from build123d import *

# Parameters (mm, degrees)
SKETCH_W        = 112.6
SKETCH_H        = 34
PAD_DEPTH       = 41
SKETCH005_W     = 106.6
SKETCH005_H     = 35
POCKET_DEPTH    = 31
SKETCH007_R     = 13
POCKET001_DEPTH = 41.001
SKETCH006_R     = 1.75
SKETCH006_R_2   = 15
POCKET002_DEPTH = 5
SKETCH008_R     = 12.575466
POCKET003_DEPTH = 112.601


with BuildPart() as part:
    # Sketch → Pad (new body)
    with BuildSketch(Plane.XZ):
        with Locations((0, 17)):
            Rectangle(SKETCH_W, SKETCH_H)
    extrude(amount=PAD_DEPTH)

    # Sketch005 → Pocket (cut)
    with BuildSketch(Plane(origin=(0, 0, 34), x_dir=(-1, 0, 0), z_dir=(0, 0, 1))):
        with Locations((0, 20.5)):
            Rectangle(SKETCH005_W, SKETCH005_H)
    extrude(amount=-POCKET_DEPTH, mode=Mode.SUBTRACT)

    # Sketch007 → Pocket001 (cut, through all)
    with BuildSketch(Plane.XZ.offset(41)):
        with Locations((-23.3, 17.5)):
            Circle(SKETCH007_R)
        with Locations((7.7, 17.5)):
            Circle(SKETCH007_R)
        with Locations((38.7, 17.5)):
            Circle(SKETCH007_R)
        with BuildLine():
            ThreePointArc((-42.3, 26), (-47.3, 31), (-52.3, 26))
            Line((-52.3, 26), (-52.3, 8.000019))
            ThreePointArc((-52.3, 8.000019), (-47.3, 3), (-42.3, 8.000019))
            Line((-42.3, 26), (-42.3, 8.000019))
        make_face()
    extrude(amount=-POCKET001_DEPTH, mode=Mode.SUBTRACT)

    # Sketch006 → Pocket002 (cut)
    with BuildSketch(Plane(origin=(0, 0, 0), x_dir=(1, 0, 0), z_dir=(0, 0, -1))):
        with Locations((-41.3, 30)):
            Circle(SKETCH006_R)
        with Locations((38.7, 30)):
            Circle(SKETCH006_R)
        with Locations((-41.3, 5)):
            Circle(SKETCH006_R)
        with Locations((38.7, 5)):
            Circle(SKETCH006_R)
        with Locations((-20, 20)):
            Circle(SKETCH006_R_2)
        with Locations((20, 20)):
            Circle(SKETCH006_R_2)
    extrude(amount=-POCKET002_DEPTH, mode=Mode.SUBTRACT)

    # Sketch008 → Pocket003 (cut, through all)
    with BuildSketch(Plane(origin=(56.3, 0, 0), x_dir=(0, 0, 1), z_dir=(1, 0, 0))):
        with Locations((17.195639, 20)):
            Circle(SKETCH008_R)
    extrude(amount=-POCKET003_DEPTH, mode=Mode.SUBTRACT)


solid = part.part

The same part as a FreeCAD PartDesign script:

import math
import FreeCAD as App
import Part
import Sketcher
Q = App.Units.Quantity

doc = App.newDocument("Part")
params = doc.addObject("Spreadsheet::Sheet", "Params")
for row, (alias, value) in enumerate([
    ("sketch1_height", "34 mm"),
    ("sketch1_width", "112.6 mm"),
    ("pad1_length", "41 mm"),
    ("sketch2_height", "35 mm"),
    ("sketch2_width", "106.6 mm"),
    ("pocket1_length", "31 mm"),
    ("sketch3_diameter", "26 mm"),
    ("sketch3_radius", "5 mm"),
    ("sketch4_diameter", "30 mm"),
    ("sketch4_diameter2", "3.5 mm"),
    ("pocket3_length", "5 mm"),
], start=1):
    params.set(f"A{row}", alias)
    params.set(f"B{row}", "=" + value)
    params.setAlias(f"B{row}", alias)

body = doc.addObject("PartDesign::Body", "Body")

sketch1 = body.newObject("Sketcher::SketchObject", "Sketch")
sketch1.AttachmentSupport = (doc.getObject("XZ_Plane"), [""])
sketch1.MapMode = "FlatFace"
sketch1.addGeometry([
    Part.LineSegment(App.Vector(-56, 34, 0), App.Vector(-56, 0, 0)),
    Part.LineSegment(App.Vector(-56, 0, 0), App.Vector(56, 0, 0)),
    Part.LineSegment(App.Vector(56, 0, 0), App.Vector(56, 34, 0)),
    Part.LineSegment(App.Vector(56, 34, 0), App.Vector(-56, 34, 0)),
], False)
sketch1.addConstraint([
    Sketcher.Constraint("Coincident", 0, 2, 1, 1),
    Sketcher.Constraint("Coincident", 1, 2, 2, 1),
    Sketcher.Constraint("Coincident", 2, 2, 3, 1),
    Sketcher.Constraint("Coincident", 3, 2, 0, 1),
    Sketcher.Constraint("Vertical", 0),
    Sketcher.Constraint("Horizontal", 1),
    Sketcher.Constraint("Vertical", 2),
    Sketcher.Constraint("Horizontal", 3),
    Sketcher.Constraint("Symmetric", 0, 2, 1, 2, -1, 1),
    Sketcher.Constraint("DistanceY", 0, 2, 0, 1, Q("34 mm")),
    Sketcher.Constraint("DistanceX", 1, 1, 1, 2, Q("112.6 mm")),
])
sketch1.setExpression("Constraints[9]", "Params.sketch1_height")
sketch1.setExpression("Constraints[10]", "Params.sketch1_width")
pad1 = body.newObject("PartDesign::Pad", "Pad")
pad1.Profile = sketch1
pad1.setExpression("Length", "Params.pad1_length")

sketch2 = body.newObject("Sketcher::SketchObject", "Sketch001")
sketch2.AttachmentSupport = (doc.getObject("XY_Plane"), [""])
sketch2.MapMode = "FlatFace"
sketch2.AttachmentOffset = App.Placement(App.Vector(0, 0, 34), App.Rotation())
sketch2.addGeometry([
    Part.LineSegment(App.Vector(53, -38, 0), App.Vector(53, -3, 0)),
    Part.LineSegment(App.Vector(53, -3, 0), App.Vector(-53, -3, 0)),
    Part.LineSegment(App.Vector(-53, -3, 0), App.Vector(-53, -38, 0)),
    Part.LineSegment(App.Vector(-53, -38, 0), App.Vector(53, -38, 0)),
], False)
sketch2.addConstraint([
    Sketcher.Constraint("Coincident", 0, 2, 1, 1),
    Sketcher.Constraint("Coincident", 1, 2, 2, 1),
    Sketcher.Constraint("Coincident", 2, 2, 3, 1),
    Sketcher.Constraint("Coincident", 3, 2, 0, 1),
    Sketcher.Constraint("Vertical", 0),
    Sketcher.Constraint("Horizontal", 1),
    Sketcher.Constraint("Vertical", 2),
    Sketcher.Constraint("Horizontal", 3),
    Sketcher.Constraint("DistanceY", 0, 1, 0, 2, Q("35 mm")),
    Sketcher.Constraint("DistanceX", 1, 2, 1, 1, Q("106.6 mm")),
    Sketcher.Constraint("DistanceY", 0, 2, -1, 1, Q("3 mm")),
    Sketcher.Constraint("DistanceX", -1, 1, 0, 2, Q("53.3 mm")),
])
sketch2.setExpression("Constraints[8]", "Params.sketch2_height")
sketch2.setExpression("Constraints[9]", "Params.sketch2_width")
pocket1 = body.newObject("PartDesign::Pocket", "Pocket")
pocket1.Profile = sketch2
pocket1.setExpression("Length", "Params.pocket1_length")

sketch3 = body.newObject("Sketcher::SketchObject", "Sketch002")
sketch3.AttachmentSupport = (doc.getObject("XZ_Plane"), [""])
sketch3.MapMode = "FlatFace"
sketch3.AttachmentOffset = App.Placement(App.Vector(0, 0, 41), App.Rotation())
sketch3.addGeometry([
    Part.Circle(App.Vector(-23, 18, 0), App.Vector(0, 0, 1), 13),
    Part.Circle(App.Vector(8, 18, 0), App.Vector(0, 0, 1), 13),
    Part.Circle(App.Vector(39, 18, 0), App.Vector(0, 0, 1), 13),
    Part.ArcOfCircle(Part.Circle(App.Vector(-47, 26, 0), App.Vector(0, 0, 1), 5), math.radians(0), math.radians(180)),
    Part.LineSegment(App.Vector(-52, 26, 0), App.Vector(-52, 8, 0)),
    Part.ArcOfCircle(Part.Circle(App.Vector(-47, 8, 0), App.Vector(0, 0, 1), 5), math.radians(180), math.radians(360)),
    Part.LineSegment(App.Vector(-42, 8, 0), App.Vector(-42, 26, 0)),
], False)
sketch3.addConstraint([
    Sketcher.Constraint("Tangent", 3, 2, 4, 1),
    Sketcher.Constraint("Coincident", 4, 2, 5, 1),
    Sketcher.Constraint("Coincident", 5, 2, 6, 1),
    Sketcher.Constraint("Tangent", 6, 2, 3, 1),
    Sketcher.Constraint("Vertical", 4),
    Sketcher.Constraint("Vertical", 6),
    Sketcher.Constraint("Equal", 0, 1),
    Sketcher.Constraint("Equal", 1, 2),
    Sketcher.Constraint("Horizontal", 0, 3, 1, 3),
    Sketcher.Constraint("Horizontal", 1, 3, 2, 3),
    Sketcher.Constraint("Horizontal", 4, 2, 5, 2),
    Sketcher.Constraint("Diameter", 0, Q("26 mm")),
    Sketcher.Constraint("Radius", 3, Q("5 mm")),
    Sketcher.Constraint("DistanceY", -1, 1, 3, 3, Q("26 mm")),
    Sketcher.Constraint("DistanceY", -1, 1, 5, 3, Q("8 mm")),
    Sketcher.Constraint("DistanceX", 0, 3, 1, 3, Q("31 mm")),
    Sketcher.Constraint("DistanceX", 1, 3, 2, 3, Q("31 mm")),
    Sketcher.Constraint("DistanceX", 3, 3, 0, 3, Q("24 mm")),
    Sketcher.Constraint("DistanceX", 0, 3, -1, 1, Q("23.3 mm")),
    Sketcher.Constraint("DistanceY", -1, 1, 0, 3, Q("17.5 mm")),
    Sketcher.Constraint("DistanceY", 4, 2, 4, 1, Q("17.999981 mm")),
])
sketch3.setExpression("Constraints[11]", "Params.sketch3_diameter")
sketch3.setExpression("Constraints[12]", "Params.sketch3_radius")
pocket2 = body.newObject("PartDesign::Pocket", "Pocket001")
pocket2.Profile = sketch3
pocket2.Type = "ThroughAll"

sketch4 = body.newObject("Sketcher::SketchObject", "Sketch003")
sketch4.AttachmentSupport = (doc.getObject("XY_Plane"), [""])
sketch4.MapMode = "FlatFace"
sketch4.addGeometry([
    Part.Circle(App.Vector(-41.3, -30, 0), App.Vector(0, 0, 1), 1.8),
    Part.Circle(App.Vector(38.7, -30, 0), App.Vector(0, 0, 1), 1.8),
    Part.Circle(App.Vector(-41.3, -5, 0), App.Vector(0, 0, 1), 1.8),
    Part.Circle(App.Vector(38.7, -5, 0), App.Vector(0, 0, 1), 1.8),
    Part.Circle(App.Vector(-20, -20, 0), App.Vector(0, 0, 1), 15),
    Part.Circle(App.Vector(20, -20, 0), App.Vector(0, 0, 1), 15),
], False)
sketch4.addConstraint([
    Sketcher.Constraint("Equal", 0, 1),
    Sketcher.Constraint("Equal", 1, 2),
    Sketcher.Constraint("Equal", 2, 3),
    Sketcher.Constraint("Equal", 4, 5),
    Sketcher.Constraint("Symmetric", 4, 3, 5, 3, -2),
    Sketcher.Constraint("Horizontal", 0, 3, 1, 3),
    Sketcher.Constraint("Horizontal", 2, 3, 3, 3),
    Sketcher.Constraint("Vertical", 0, 3, 2, 3),
    Sketcher.Constraint("Vertical", 1, 3, 3, 3),
    Sketcher.Constraint("Diameter", 4, Q("30 mm")),
    Sketcher.Constraint("Diameter", 0, Q("3.5 mm")),
    Sketcher.Constraint("DistanceY", 0, 3, -1, 1, Q("30 mm")),
    Sketcher.Constraint("DistanceY", 2, 3, -1, 1, Q("5 mm")),
    Sketcher.Constraint("DistanceX", 4, 3, -1, 1, Q("20 mm")),
    Sketcher.Constraint("DistanceY", 4, 3, -1, 1, Q("20 mm")),
    Sketcher.Constraint("DistanceX", 0, 3, 1, 3, Q("80 mm")),
    Sketcher.Constraint("DistanceX", 0, 3, -1, 1, Q("41.3 mm")),
])
sketch4.setExpression("Constraints[9]", "Params.sketch4_diameter")
sketch4.setExpression("Constraints[10]", "Params.sketch4_diameter2")
pocket3 = body.newObject("PartDesign::Pocket", "Pocket002")
pocket3.Profile = sketch4
pocket3.setExpression("Length", "Params.pocket3_length")
pocket3.Reversed = True

sketch5 = body.newObject("Sketcher::SketchObject", "Sketch004")
sketch5.AttachmentSupport = (doc.getObject("YZ_Plane"), [""])
sketch5.MapMode = "FlatFace"
sketch5.AttachmentOffset = App.Placement(App.Vector(0, 0, 56.3), App.Rotation())
sketch5.addGeometry(Part.Circle(App.Vector(-20, 17, 0), App.Vector(0, 0, 1), 13), False)
sketch5.addConstraint([
    Sketcher.Constraint("DistanceX", 0, 3, -1, 1, Q("20 mm")),
    Sketcher.Constraint("Diameter", 0, Q("25.150932 mm")),
    Sketcher.Constraint("DistanceY", -1, 1, 0, 3, Q("17.195639 mm")),
])
pocket4 = body.newObject("PartDesign::Pocket", "Pocket003")
pocket4.Profile = sketch5
pocket4.Type = "ThroughAll"

doc.recompute()
